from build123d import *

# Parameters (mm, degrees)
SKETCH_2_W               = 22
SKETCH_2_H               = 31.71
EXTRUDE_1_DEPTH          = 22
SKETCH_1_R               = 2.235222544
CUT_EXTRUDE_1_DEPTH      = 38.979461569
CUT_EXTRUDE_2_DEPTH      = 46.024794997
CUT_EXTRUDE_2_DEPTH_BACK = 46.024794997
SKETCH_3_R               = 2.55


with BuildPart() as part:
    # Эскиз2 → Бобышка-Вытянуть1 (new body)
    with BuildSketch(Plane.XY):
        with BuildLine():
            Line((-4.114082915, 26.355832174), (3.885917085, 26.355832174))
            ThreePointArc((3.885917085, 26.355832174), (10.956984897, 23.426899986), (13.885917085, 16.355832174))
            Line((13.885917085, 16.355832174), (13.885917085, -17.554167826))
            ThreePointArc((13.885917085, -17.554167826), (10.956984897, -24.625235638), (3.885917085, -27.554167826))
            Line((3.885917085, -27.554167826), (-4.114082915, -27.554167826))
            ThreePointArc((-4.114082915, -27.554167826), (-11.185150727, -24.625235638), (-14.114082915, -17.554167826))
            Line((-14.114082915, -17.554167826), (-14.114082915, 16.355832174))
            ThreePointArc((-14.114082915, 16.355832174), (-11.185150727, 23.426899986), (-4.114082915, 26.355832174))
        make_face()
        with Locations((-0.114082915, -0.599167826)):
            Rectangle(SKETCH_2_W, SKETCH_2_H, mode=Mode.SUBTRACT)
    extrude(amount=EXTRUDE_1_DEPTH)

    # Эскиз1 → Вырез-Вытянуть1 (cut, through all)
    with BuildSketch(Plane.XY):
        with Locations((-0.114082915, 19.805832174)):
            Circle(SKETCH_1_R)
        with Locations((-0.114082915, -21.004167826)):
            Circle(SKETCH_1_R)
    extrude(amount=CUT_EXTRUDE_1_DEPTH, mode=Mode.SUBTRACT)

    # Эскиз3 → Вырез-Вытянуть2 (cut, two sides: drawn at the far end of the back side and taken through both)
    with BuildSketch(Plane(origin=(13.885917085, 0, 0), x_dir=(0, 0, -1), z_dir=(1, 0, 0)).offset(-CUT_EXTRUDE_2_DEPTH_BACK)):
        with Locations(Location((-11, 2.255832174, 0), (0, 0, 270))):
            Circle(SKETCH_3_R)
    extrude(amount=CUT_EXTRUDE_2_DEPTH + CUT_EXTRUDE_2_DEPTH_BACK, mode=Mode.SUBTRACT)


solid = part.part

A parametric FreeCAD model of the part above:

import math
import FreeCAD as App
import Part
import Sketcher


def add_polygon(sketch, points):
    """Adds a closed chain of lines whose ends are joined by coincident constraints."""
    first, n = sketch.GeometryCount, len(points)
    for a, b in zip(points, points[1:] + points[:1]):
        sketch.addGeometry(Part.LineSegment(App.Vector(*a, 0), App.Vector(*b, 0)), False)
    for i in range(n):
        sketch.addConstraint(Sketcher.Constraint("Coincident", first + i, 2, first + (i + 1) % n, 1))

doc = App.newDocument("Part")
params = doc.addObject("Spreadsheet::Sheet", "Params")
for row, (alias, value) in enumerate([
    ("sketch1_radius", "10 mm"),
    ("sketch1_width", "8 mm"),
    ("sketch1_width2", "22 mm"),
    ("sketch1_height", "33.91 mm"),
    ("sketch1_height2", "31.71 mm"),
    ("pad1_length", "22 mm"),
    ("sketch3_diameter", "5.1 mm"),
], start=1):
    params.set(f"A{row}", alias)
    params.set(f"B{row}", "=" + value)
    params.setAlias(f"B{row}", alias)

body = doc.addObject("PartDesign::Body", "Body")

# Sketch on XY plane
sketch1 = doc.addObject("Sketcher::SketchObject", "Sketch")
body.addObject(sketch1)
sketch1.AttachmentSupport = (doc.XY_Plane, [""])
sketch1.MapMode = "FlatFace"
sketch1.addGeometry(Part.LineSegment(App.Vector(4, 26, 0), App.Vector(-4, 26, 0)), False)  # 0
sketch1.addGeometry(Part.ArcOfCircle(Part.Circle(App.Vector(-4, 16, 0), App.Vector(0, 0, 1), 10), math.radians(90), math.radians(180)), False)  # 1
sketch1.addGeometry(Part.LineSegment(App.Vector(-14, 16, 0), App.Vector(-14, -18, 0)), False)  # 2
sketch1.addGeometry(Part.ArcOfCircle(Part.Circle(App.Vector(-4, -18, 0), App.Vector(0, 0, 1), 10), math.radians(180), math.radians(270)), False)  # 3
sketch1.addGeometry(Part.LineSegment(App.Vector(-4, -28, 0), App.Vector(4, -28, 0)), False)  # 4
sketch1.addGeometry(Part.ArcOfCircle(Part.Circle(App.Vector(4, -18, 0), App.Vector(0, 0, 1), 10), math.radians(-90), math.radians(0)), False)  # 5
sketch1.addGeometry(Part.LineSegment(App.Vector(14, -18, 0), App.Vector(14, 16, 0)), False)  # 6
sketch1.addGeometry(Part.ArcOfCircle(Part.Circle(App.Vector(4, 16, 0), App.Vector(0, 0, 1), 10), math.radians(0), math.radians(90)), False)  # 7
add_polygon(sketch1, [(-11, -16), (-11, 15), (11, 15), (11, -16)])  # lines 8-11
sketch1.addConstraint(Sketcher.Constraint("Tangent", 0, 2, 1, 1))
sketch1.addConstraint(Sketcher.Constraint("Tangent", 1, 2, 2, 1))
sketch1.addConstraint(Sketcher.Constraint("Tangent", 2, 2, 3, 1))
sketch1.addConstraint(Sketcher.Constraint("Tangent", 3, 2, 4, 1))
sketch1.addConstraint(Sketcher.Constraint("Tangent", 4, 2, 5, 1))
sketch1.addConstraint(Sketcher.Constraint("Tangent", 5, 2, 6, 1))
sketch1.addConstraint(Sketcher.Constraint("Tangent", 6, 2, 7, 1))
sketch1.addConstraint(Sketcher.Constraint("Tangent", 7, 2, 0, 1))
sketch1.addConstraint(Sketcher.Constraint("Horizontal", 0))
sketch1.addConstraint(Sketcher.Constraint("Vertical", 2))
sketch1.addConstraint(Sketcher.Constraint("Horizontal", 4))
sketch1.addConstraint(Sketcher.Constraint("Vertical", 6))
sketch1.addConstraint(Sketcher.Constraint("Vertical", 8))
sketch1.addConstraint(Sketcher.Constraint("Horizontal", 9))
sketch1.addConstraint(Sketcher.Constraint("Vertical", 10))
sketch1.addConstraint(Sketcher.Constraint("Horizontal", 11))
sketch1.addConstraint(Sketcher.Constraint("Equal", 1, 3))
sketch1.addConstraint(Sketcher.Constraint("Equal", 3, 5))
sketch1.addConstraint(Sketcher.Constraint("Equal", 5, 7))
sketch1.addConstraint(Sketcher.Constraint("Radius", 1, 10.0))
sketch1.addConstraint(Sketcher.Constraint("DistanceX", 0, 2, 0, 1, 8.0))
sketch1.addConstraint(Sketcher.Constraint("DistanceX", 9, 1, 9, 2, 22.0))
sketch1.addConstraint(Sketcher.Constraint("DistanceX", 1, 2, 8, 2, 3.0))
sketch1.addConstraint(Sketcher.Constraint("DistanceY", 2, 2, 2, 1, 33.91))
sketch1.addConstraint(Sketcher.Constraint("DistanceY", 8, 1, 8, 2, 31.71))
sketch1.addConstraint(Sketcher.Constraint("DistanceY", 8, 2, 1, 2, 1.1))
sketch1.addConstraint(Sketcher.Constraint("DistanceX", 1, 3, -1, 1, 4.114083))
sketch1.addConstraint(Sketcher.Constraint("DistanceY", -1, 1, 1, 3, 16.355832))
sketch1.setExpression("Constraints[23]", "Params.sketch1_radius")
sketch1.setExpression("Constraints[24]", "Params.sketch1_width")
sketch1.setExpression("Constraints[25]", "Params.sketch1_width2")
sketch1.setExpression("Constraints[27]", "Params.sketch1_height")
sketch1.setExpression("Constraints[28]", "Params.sketch1_height2")
pad1 = doc.addObject("PartDesign::Pad", "Pad")
body.addObject(pad1)
pad1.Profile = sketch1
pad1.setExpression("Length", "Params.pad1_length")

# Sketch on XY plane
sketch2 = doc.addObject("Sketcher::SketchObject", "Sketch001")
body.addObject(sketch2)
sketch2.AttachmentSupport = (doc.XY_Plane, [""])
sketch2.MapMode = "FlatFace"
sketch2.addGeometry(Part.Circle(App.Vector(-0.1, 19.8, 0), App.Vector(0, 0, 1), 2.2), False)
sketch2.addGeometry(Part.Circle(App.Vector(-0.1, -21, 0), App.Vector(0, 0, 1), 2.2), False)
sketch2.addConstraint(Sketcher.Constraint("Equal", 0, 1))
sketch2.addConstraint(Sketcher.Constraint("Vertical", 0, 3, 1, 3))
sketch2.addConstraint(Sketcher.Constraint("DistanceY", 1, 3, 0, 3, 40.81))
sketch2.addConstraint(Sketcher.Constraint("Diameter", 0, 4.470445))
sketch2.addConstraint(Sketcher.Constraint("DistanceX", 0, 3, -1, 1, 0.114083))
sketch2.addConstraint(Sketcher.Constraint("DistanceY", -1, 1, 0, 3, 19.805832))
pocket1 = doc.addObject("PartDesign::Pocket", "Pocket")
body.addObject(pocket1)
pocket1.Profile = sketch2
pocket1.Type = "ThroughAll"
pocket1.Reversed = True

# Sketch on YZ plane
sketch3 = doc.addObject("Sketcher::SketchObject", "Sketch002")
body.addObject(sketch3)
sketch3.AttachmentSupport = (doc.YZ_Plane, [""])
sketch3.MapMode = "FlatFace"
sketch3.AttachmentOffset = App.Placement(App.Vector(0, 0, 13.885917), App.Rotation())
sketch3.addGeometry(Part.Circle(App.Vector(2.3, 11, 0), App.Vector(0, 0, 1), 2.5), False)
sketch3.addConstraint(Sketcher.Constraint("Diameter", 0, 5.1))
sketch3.addConstraint(Sketcher.Constraint("DistanceY", -1, 1, 0, 3, 11.0))
sketch3.addConstraint(Sketcher.Constraint("DistanceX", -1, 1, 0, 3, 2.255832))
sketch3.setExpression("Constraints[0]", "Params.sketch3_diameter")
pocket2 = doc.addObject("PartDesign::Pocket", "Pocket001")
body.addObject(pocket2)
pocket2.Profile = sketch3
pocket2.Type = "ThroughAll"
pocket2.Midplane = True

doc.recompute()
